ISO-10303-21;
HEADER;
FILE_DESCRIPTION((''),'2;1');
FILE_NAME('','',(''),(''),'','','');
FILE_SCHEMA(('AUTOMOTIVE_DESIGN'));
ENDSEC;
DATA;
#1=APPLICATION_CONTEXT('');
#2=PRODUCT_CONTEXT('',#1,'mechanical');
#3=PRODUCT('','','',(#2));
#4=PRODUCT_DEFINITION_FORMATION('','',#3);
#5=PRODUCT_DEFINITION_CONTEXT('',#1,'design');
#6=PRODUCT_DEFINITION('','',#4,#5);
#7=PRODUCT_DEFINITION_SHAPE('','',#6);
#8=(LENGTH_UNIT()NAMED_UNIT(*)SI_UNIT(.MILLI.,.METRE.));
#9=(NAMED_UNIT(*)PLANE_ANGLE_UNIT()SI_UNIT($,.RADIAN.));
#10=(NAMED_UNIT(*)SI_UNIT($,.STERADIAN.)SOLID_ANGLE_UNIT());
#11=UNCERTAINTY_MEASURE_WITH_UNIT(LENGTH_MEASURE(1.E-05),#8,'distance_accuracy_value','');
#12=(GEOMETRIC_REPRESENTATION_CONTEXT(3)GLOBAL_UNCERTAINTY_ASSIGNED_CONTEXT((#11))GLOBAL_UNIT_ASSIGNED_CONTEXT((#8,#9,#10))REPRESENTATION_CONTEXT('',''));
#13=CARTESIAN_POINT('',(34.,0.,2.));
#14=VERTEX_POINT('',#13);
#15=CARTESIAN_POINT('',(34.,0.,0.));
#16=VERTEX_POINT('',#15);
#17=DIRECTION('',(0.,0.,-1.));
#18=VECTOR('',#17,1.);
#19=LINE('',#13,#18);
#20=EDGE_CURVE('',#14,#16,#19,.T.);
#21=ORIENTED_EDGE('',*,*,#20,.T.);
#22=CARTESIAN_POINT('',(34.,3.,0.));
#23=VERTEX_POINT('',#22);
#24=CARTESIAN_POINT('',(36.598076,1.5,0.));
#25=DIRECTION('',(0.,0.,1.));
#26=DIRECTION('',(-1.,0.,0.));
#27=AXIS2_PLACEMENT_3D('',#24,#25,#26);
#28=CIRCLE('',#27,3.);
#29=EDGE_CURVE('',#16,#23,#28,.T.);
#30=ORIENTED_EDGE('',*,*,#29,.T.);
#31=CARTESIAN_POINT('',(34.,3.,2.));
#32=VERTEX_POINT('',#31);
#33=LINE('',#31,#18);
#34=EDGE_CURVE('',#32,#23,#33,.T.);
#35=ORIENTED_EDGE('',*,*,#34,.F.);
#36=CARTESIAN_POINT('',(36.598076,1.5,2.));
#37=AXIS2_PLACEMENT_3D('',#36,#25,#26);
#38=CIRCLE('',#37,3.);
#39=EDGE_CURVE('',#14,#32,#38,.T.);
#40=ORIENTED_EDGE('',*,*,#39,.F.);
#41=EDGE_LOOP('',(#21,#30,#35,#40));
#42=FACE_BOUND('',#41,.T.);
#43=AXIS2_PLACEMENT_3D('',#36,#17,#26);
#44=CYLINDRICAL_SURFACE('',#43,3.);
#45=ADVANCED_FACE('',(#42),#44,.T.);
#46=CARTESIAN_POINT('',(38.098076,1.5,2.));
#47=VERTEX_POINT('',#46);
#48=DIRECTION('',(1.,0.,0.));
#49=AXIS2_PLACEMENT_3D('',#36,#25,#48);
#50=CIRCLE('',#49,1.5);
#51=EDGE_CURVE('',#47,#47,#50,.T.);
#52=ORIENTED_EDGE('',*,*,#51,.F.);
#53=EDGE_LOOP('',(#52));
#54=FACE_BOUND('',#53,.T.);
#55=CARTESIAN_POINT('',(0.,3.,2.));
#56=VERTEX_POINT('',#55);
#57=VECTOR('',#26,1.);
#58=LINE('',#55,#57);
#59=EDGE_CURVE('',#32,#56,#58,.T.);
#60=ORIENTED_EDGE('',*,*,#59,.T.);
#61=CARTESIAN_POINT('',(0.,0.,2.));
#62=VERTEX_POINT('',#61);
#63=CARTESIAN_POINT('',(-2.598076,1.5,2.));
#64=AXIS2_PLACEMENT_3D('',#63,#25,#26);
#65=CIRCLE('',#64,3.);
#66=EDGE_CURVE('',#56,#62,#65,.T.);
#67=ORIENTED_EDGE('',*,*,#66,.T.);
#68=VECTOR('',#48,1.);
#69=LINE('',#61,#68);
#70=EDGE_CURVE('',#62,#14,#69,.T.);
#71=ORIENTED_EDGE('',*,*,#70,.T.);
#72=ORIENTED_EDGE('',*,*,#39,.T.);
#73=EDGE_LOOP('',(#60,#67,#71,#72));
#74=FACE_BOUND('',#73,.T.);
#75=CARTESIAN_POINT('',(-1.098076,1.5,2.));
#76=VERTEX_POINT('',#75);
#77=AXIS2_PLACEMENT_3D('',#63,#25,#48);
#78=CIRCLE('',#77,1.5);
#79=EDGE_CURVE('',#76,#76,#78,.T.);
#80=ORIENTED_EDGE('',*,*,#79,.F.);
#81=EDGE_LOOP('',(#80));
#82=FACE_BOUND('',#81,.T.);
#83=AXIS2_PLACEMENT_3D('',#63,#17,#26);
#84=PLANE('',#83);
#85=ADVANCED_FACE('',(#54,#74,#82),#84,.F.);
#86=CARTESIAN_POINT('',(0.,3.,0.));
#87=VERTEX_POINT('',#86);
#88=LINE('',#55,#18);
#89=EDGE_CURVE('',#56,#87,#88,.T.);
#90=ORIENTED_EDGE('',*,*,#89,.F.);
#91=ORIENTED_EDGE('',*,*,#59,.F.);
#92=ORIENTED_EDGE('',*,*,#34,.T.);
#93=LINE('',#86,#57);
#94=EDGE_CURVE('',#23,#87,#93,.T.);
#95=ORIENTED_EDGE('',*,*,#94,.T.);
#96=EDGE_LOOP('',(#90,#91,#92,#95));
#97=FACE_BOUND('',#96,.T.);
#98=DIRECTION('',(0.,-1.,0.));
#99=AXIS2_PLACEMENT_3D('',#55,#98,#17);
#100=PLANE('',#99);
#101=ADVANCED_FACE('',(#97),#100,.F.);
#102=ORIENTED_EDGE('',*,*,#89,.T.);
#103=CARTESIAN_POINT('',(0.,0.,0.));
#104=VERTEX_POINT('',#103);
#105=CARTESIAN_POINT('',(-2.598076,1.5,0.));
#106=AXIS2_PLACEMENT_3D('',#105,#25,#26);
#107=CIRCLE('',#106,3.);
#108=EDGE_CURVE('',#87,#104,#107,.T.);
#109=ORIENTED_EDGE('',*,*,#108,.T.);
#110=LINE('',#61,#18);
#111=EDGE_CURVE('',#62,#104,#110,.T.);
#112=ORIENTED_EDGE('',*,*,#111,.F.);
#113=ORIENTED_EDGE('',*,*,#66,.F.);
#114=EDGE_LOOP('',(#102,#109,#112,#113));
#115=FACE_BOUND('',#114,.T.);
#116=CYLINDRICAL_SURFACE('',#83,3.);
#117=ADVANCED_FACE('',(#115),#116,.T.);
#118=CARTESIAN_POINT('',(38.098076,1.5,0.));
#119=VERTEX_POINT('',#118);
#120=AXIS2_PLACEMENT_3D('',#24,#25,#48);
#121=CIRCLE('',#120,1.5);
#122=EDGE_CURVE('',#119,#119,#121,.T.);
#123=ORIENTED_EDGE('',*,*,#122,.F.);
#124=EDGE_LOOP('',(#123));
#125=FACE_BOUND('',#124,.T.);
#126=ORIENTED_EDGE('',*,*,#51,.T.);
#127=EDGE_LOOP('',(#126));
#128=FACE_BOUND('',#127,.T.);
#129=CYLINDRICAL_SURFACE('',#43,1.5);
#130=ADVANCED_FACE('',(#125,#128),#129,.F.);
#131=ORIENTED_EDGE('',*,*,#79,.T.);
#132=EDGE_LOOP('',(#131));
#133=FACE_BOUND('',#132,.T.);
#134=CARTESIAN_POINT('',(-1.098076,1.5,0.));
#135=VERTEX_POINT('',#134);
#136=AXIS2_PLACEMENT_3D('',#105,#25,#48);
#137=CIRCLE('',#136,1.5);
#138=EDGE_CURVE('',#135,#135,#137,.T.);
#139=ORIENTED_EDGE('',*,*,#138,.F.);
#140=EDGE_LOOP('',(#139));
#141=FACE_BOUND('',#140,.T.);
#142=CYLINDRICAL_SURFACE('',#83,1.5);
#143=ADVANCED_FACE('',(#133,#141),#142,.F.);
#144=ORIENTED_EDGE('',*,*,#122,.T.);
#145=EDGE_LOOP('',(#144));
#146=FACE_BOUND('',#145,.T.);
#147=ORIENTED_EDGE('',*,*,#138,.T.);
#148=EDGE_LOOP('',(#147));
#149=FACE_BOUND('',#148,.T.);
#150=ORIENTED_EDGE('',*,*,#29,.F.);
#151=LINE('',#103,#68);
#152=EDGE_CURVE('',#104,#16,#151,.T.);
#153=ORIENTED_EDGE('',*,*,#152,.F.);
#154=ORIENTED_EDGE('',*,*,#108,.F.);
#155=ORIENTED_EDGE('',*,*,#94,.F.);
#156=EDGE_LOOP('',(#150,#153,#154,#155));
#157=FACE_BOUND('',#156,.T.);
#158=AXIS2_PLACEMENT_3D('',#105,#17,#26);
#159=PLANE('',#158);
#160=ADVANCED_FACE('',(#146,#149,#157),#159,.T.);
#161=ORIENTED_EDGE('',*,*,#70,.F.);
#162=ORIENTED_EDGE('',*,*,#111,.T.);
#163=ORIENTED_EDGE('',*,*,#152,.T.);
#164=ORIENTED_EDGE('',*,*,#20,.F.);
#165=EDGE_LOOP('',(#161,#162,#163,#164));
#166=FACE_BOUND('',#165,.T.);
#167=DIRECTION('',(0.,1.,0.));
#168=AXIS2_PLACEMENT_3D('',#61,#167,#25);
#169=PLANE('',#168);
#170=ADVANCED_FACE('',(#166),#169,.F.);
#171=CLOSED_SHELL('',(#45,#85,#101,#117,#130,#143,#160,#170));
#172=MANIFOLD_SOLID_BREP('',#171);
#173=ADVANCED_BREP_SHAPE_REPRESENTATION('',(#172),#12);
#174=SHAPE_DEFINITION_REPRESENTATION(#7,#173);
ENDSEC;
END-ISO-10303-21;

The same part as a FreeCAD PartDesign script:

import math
import FreeCAD as App
import Part
import Sketcher

V = App.Vector
Q = App.Units.Quantity

doc = App.newDocument("Part")
body = doc.addObject("PartDesign::Body", "Body")

sketch1 = body.newObject("Sketcher::SketchObject", "Sketch")
sketch1.AttachmentSupport = (doc.getObject("XY_Plane"), [""])
sketch1.MapMode = "FlatFace"
sketch1.addGeometry(Part.LineSegment(V(0, 0, 0), V(34, 0, 0)), False)
sketch1.addGeometry(Part.ArcOfCircle(Part.Circle(V(36.6, 1.5, 0), V(0, 0, 1), 3), math.radians(-150), math.radians(150)), False)
sketch1.addGeometry(Part.LineSegment(V(34, 3, 0), V(0, 3, 0)), False)
sketch1.addGeometry(Part.ArcOfCircle(Part.Circle(V(-2.6, 1.5, 0), V(0, 0, 1), 3), math.radians(30), math.radians(330)), False)
sketch1.addGeometry(Part.Circle(V(-2.6, 1.5, 0), V(0, 0, 1), 1.5), False)
sketch1.addGeometry(Part.Circle(V(36.6, 1.5, 0), V(0, 0, 1), 1.5), False)
sketch1.addConstraint(Sketcher.Constraint("Coincident", 0, 2, 1, 1))
sketch1.addConstraint(Sketcher.Constraint("Coincident", 1, 2, 2, 1))
sketch1.addConstraint(Sketcher.Constraint("Coincident", 2, 2, 3, 1))
sketch1.addConstraint(Sketcher.Constraint("Coincident", 3, 2, 0, 1))
sketch1.addConstraint(Sketcher.Constraint("Horizontal", 0))
sketch1.addConstraint(Sketcher.Constraint("Horizontal", 2))
sketch1.addConstraint(Sketcher.Constraint("Coincident", 3, 2, -1, 1))
sketch1.addConstraint(Sketcher.Constraint("Coincident", 4, 3, 3, 3))
sketch1.addConstraint(Sketcher.Constraint("Coincident", 5, 3, 1, 3))
sketch1.addConstraint(Sketcher.Constraint("Equal", 1, 3))
sketch1.addConstraint(Sketcher.Constraint("Equal", 4, 5))
sketch1.addConstraint(Sketcher.Constraint("PointOnObject", 2, 2, -2))
sketch1.addConstraint(Sketcher.Constraint("Horizontal", 1, 3, 3, 3))
sketch1.addConstraint(Sketcher.Constraint("Diameter", 4, Q("3 mm")))
sketch1.addConstraint(Sketcher.Constraint("Radius", 1, Q("3 mm")))
sketch1.addConstraint(Sketcher.Constraint("DistanceX", 0, 1, 0, 2, Q("34 mm")))
sketch1.addConstraint(Sketcher.Constraint("DistanceY", -1, 1, 1, 2, Q("3 mm")))
pad1 = body.newObject("PartDesign::Pad", "Pad")
pad1.Profile = sketch1
pad1.Length = 2

doc.recompute()
